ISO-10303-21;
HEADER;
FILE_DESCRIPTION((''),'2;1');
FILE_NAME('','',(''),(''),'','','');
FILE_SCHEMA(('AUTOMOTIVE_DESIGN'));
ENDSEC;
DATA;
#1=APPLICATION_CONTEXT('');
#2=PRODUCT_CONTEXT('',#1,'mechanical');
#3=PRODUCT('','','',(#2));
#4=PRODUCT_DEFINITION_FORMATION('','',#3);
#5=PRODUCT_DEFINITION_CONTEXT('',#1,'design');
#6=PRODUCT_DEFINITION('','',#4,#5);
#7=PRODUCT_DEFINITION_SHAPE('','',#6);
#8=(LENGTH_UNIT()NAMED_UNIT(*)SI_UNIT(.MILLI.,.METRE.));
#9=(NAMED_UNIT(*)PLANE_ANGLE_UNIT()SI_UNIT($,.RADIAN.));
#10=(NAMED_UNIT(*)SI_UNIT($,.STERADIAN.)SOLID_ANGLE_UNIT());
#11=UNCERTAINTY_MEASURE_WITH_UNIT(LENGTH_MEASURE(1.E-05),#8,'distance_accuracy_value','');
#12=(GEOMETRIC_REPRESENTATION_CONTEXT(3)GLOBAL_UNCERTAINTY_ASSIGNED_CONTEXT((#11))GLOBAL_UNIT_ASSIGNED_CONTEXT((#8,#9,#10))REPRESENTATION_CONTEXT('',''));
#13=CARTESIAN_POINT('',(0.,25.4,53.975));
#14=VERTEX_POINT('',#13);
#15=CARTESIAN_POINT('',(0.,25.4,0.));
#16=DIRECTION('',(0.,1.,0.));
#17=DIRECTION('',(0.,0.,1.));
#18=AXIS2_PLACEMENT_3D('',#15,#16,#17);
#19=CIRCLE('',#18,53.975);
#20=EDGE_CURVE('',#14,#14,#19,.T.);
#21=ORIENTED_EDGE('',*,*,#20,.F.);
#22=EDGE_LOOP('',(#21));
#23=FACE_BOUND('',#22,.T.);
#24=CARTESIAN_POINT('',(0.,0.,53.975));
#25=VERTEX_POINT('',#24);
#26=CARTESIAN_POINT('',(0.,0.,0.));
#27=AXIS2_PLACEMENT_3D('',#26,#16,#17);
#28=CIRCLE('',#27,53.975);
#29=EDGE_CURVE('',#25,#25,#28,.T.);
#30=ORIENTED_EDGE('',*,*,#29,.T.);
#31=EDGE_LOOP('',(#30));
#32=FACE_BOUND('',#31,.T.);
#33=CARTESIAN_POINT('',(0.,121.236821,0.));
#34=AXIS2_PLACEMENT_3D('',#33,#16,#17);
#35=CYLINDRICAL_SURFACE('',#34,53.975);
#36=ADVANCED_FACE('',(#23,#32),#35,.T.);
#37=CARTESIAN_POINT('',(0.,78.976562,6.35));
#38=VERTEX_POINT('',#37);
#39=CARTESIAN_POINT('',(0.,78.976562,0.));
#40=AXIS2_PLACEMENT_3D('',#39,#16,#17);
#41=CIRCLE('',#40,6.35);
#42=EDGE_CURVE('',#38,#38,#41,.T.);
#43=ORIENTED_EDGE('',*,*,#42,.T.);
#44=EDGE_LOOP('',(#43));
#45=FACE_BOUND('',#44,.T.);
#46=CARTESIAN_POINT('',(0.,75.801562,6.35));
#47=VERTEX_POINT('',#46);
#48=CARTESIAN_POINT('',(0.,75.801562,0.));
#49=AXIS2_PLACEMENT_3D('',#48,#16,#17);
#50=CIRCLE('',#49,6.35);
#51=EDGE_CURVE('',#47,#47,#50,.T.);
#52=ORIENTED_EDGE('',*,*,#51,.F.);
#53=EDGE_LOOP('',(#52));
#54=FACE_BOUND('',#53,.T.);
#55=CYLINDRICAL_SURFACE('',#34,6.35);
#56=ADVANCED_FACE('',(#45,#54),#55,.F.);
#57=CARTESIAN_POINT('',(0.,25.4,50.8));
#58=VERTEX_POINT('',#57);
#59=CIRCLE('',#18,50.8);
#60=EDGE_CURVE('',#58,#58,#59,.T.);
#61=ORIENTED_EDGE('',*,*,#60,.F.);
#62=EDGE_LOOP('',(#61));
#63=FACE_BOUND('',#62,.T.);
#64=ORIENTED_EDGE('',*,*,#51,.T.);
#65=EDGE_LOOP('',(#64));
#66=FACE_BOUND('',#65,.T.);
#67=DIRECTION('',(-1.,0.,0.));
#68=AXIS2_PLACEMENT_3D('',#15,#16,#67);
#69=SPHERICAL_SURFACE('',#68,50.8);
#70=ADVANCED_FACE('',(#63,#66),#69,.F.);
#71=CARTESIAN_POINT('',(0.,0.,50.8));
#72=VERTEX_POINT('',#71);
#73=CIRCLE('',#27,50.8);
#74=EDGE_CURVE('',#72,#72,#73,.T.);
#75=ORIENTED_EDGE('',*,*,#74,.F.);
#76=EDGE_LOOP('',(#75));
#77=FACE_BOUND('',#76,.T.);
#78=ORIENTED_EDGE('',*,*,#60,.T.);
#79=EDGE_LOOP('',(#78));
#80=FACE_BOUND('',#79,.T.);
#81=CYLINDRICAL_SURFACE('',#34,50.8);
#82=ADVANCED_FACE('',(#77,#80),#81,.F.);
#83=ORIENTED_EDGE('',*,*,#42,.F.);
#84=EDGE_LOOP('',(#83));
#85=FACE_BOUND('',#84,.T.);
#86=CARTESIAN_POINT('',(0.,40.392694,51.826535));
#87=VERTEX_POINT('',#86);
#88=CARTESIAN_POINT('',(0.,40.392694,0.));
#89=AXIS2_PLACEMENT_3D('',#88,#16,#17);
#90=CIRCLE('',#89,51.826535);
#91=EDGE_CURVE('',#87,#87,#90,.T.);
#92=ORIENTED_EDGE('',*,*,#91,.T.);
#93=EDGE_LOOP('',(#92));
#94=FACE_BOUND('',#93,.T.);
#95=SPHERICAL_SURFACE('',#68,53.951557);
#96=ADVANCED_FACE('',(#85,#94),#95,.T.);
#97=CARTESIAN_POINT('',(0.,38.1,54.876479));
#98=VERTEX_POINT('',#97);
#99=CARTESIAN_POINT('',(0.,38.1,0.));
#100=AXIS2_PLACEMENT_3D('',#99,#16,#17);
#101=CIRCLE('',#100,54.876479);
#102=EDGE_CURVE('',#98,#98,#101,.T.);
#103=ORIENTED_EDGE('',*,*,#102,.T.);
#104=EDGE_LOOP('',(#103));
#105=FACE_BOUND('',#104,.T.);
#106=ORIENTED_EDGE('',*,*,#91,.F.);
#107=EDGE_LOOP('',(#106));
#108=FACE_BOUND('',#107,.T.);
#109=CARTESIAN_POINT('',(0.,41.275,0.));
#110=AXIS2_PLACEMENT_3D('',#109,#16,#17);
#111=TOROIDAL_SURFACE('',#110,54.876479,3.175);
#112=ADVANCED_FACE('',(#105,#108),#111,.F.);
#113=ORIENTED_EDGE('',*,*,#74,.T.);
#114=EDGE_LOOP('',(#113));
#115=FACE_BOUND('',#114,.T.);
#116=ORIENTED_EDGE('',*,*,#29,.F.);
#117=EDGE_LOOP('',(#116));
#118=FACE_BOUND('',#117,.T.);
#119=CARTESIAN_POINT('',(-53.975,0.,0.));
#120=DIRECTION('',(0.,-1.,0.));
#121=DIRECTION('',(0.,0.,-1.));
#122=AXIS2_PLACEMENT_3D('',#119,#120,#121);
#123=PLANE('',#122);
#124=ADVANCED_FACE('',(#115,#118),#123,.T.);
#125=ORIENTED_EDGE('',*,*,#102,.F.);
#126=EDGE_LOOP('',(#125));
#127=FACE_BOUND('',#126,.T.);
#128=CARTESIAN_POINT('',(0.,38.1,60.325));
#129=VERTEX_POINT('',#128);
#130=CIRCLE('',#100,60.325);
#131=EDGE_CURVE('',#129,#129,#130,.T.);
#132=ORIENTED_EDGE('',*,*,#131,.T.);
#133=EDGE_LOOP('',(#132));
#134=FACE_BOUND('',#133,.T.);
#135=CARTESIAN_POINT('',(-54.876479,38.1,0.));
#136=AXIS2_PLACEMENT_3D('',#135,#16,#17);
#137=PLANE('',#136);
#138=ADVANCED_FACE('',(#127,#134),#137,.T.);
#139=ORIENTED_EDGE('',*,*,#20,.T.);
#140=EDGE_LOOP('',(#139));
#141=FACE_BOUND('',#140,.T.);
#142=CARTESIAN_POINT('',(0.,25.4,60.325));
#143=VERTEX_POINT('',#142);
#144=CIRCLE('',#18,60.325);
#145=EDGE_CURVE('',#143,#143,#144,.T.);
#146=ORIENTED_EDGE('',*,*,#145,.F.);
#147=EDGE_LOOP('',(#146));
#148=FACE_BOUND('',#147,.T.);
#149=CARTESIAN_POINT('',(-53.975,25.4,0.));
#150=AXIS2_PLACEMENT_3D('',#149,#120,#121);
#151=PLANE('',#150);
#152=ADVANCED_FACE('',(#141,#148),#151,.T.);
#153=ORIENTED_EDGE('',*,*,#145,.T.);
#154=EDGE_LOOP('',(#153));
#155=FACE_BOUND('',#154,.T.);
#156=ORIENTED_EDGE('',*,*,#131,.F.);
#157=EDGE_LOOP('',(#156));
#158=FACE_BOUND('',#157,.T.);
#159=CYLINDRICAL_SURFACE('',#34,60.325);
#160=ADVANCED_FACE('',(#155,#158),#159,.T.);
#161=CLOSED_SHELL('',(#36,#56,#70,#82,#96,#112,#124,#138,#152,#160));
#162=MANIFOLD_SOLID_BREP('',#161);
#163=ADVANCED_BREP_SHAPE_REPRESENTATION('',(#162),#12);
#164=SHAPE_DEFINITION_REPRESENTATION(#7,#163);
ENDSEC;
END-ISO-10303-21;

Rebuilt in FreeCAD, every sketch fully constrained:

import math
import FreeCAD as App
import Part
import Sketcher
from FreeCAD import Vector
Q = App.Units.Quantity

doc = App.newDocument("Part")
params = doc.addObject("Spreadsheet::Sheet", "Params")
for row, (alias, value) in enumerate([
    ("sketch1_radius", "2 in"),
    ("sketch1_height", "1 in"),
    ("sketch1_height2", "0.5 in"),
    ("sketch1_radius2", "0.125 in"),
    ("sketch1_width", "0.25 in"),
    ("revolution_angle", "360 deg"),
], start=1):
    params.set(f"A{row}", alias)
    params.set(f"B{row}", "=" + value)
    params.setAlias(f"B{row}", alias)

body = doc.addObject("PartDesign::Body", "Body")

sketch1 = body.newObject("Sketcher::SketchObject", "Sketch")
sketch1.AttachmentSupport = (doc.getObject("XY_Plane"), [""])
sketch1.MapMode = "FlatFace"
sketch1.addGeometry([
    Part.LineSegment(Vector(-54, 25.4, 0), Vector(-54, 0, 0)),
    Part.LineSegment(Vector(-54, 0, 0), Vector(-50.8, 0, 0)),
    Part.LineSegment(Vector(-50.8, 0, 0), Vector(-50.8, 25.4, 0)),
    Part.ArcOfCircle(Part.Circle(Vector(0, 25.4, 0), Vector(0, 0, 1), 50.8), math.radians(97), math.radians(180)),
    Part.LineSegment(Vector(-6.3, 75.8, 0), Vector(-6.3, 79, 0)),
    Part.ArcOfCircle(Part.Circle(Vector(0, 25.4, 0), Vector(0, 0, 1), 54), math.radians(97), math.radians(164)),
    Part.ArcOfCircle(Part.Circle(Vector(-54.9, 41.3, 0), Vector(0, 0, 1), 3.2), math.radians(-90), math.radians(-16)),
    Part.LineSegment(Vector(-54.9, 38.1, 0), Vector(-60.3, 38.1, 0)),
    Part.LineSegment(Vector(-60.3, 38.1, 0), Vector(-60.3, 25.4, 0)),
    Part.LineSegment(Vector(-60.3, 25.4, 0), Vector(-54, 25.4, 0)),
], False)
sketch1.addConstraint([
    Sketcher.Constraint("Coincident", 0, 2, 1, 1),
    Sketcher.Constraint("Coincident", 1, 2, 2, 1),
    Sketcher.Constraint("Tangent", 2, 2, 3, 2),
    Sketcher.Constraint("Coincident", 3, 1, 4, 1),
    Sketcher.Constraint("Coincident", 4, 2, 5, 1),
    Sketcher.Constraint("Tangent", 5, 2, 6, 2),
    Sketcher.Constraint("Tangent", 6, 1, 7, 1),
    Sketcher.Constraint("Coincident", 7, 2, 8, 1),
    Sketcher.Constraint("Coincident", 8, 2, 9, 1),
    Sketcher.Constraint("Coincident", 9, 2, 0, 1),
    Sketcher.Constraint("Vertical", 0),
    Sketcher.Constraint("Horizontal", 1),
    Sketcher.Constraint("Vertical", 2),
    Sketcher.Constraint("Vertical", 4),
    Sketcher.Constraint("Horizontal", 7),
    Sketcher.Constraint("Vertical", 8),
    Sketcher.Constraint("Horizontal", 9),
    Sketcher.Constraint("Coincident", 5, 3, 3, 3),
    Sketcher.Constraint("PointOnObject", 3, 3, -2),
    Sketcher.Constraint("PointOnObject", 0, 2, -1),
    Sketcher.Constraint("Horizontal", 2, 2, 8, 2),
    Sketcher.Constraint("Equal", 1, 4),
    Sketcher.Constraint("Radius", 3, Q("2 in")),
    Sketcher.Constraint("DistanceY", 0, 2, 0, 1, Q("1 in")),
    Sketcher.Constraint("DistanceY", 8, 2, 8, 1, Q("0.5 in")),
    Sketcher.Constraint("Radius", 6, Q("0.125 in")),
    Sketcher.Constraint("DistanceX", 9, 1, 9, 2, Q("0.25 in")),
    Sketcher.Constraint("DistanceX", 1, 1, 1, 2, Q("0.125 in")),
    Sketcher.Constraint("DistanceX", 3, 1, -1, 1, Q("0.25 in")),
])
sketch1.setExpression("Constraints[22]", "Params.sketch1_radius")
sketch1.setExpression("Constraints[23]", "Params.sketch1_height")
sketch1.setExpression("Constraints[24]", "Params.sketch1_height2")
sketch1.setExpression("Constraints[25]", "Params.sketch1_radius2")
sketch1.setExpression("Constraints[26]", "Params.sketch1_width")
revolution = body.newObject("PartDesign::Revolution", "Revolution")
revolution.Profile = sketch1
revolution.ReferenceAxis = (sketch1, ["V_Axis"])
revolution.setExpression("Angle", "Params.revolution_angle")

doc.recompute()
